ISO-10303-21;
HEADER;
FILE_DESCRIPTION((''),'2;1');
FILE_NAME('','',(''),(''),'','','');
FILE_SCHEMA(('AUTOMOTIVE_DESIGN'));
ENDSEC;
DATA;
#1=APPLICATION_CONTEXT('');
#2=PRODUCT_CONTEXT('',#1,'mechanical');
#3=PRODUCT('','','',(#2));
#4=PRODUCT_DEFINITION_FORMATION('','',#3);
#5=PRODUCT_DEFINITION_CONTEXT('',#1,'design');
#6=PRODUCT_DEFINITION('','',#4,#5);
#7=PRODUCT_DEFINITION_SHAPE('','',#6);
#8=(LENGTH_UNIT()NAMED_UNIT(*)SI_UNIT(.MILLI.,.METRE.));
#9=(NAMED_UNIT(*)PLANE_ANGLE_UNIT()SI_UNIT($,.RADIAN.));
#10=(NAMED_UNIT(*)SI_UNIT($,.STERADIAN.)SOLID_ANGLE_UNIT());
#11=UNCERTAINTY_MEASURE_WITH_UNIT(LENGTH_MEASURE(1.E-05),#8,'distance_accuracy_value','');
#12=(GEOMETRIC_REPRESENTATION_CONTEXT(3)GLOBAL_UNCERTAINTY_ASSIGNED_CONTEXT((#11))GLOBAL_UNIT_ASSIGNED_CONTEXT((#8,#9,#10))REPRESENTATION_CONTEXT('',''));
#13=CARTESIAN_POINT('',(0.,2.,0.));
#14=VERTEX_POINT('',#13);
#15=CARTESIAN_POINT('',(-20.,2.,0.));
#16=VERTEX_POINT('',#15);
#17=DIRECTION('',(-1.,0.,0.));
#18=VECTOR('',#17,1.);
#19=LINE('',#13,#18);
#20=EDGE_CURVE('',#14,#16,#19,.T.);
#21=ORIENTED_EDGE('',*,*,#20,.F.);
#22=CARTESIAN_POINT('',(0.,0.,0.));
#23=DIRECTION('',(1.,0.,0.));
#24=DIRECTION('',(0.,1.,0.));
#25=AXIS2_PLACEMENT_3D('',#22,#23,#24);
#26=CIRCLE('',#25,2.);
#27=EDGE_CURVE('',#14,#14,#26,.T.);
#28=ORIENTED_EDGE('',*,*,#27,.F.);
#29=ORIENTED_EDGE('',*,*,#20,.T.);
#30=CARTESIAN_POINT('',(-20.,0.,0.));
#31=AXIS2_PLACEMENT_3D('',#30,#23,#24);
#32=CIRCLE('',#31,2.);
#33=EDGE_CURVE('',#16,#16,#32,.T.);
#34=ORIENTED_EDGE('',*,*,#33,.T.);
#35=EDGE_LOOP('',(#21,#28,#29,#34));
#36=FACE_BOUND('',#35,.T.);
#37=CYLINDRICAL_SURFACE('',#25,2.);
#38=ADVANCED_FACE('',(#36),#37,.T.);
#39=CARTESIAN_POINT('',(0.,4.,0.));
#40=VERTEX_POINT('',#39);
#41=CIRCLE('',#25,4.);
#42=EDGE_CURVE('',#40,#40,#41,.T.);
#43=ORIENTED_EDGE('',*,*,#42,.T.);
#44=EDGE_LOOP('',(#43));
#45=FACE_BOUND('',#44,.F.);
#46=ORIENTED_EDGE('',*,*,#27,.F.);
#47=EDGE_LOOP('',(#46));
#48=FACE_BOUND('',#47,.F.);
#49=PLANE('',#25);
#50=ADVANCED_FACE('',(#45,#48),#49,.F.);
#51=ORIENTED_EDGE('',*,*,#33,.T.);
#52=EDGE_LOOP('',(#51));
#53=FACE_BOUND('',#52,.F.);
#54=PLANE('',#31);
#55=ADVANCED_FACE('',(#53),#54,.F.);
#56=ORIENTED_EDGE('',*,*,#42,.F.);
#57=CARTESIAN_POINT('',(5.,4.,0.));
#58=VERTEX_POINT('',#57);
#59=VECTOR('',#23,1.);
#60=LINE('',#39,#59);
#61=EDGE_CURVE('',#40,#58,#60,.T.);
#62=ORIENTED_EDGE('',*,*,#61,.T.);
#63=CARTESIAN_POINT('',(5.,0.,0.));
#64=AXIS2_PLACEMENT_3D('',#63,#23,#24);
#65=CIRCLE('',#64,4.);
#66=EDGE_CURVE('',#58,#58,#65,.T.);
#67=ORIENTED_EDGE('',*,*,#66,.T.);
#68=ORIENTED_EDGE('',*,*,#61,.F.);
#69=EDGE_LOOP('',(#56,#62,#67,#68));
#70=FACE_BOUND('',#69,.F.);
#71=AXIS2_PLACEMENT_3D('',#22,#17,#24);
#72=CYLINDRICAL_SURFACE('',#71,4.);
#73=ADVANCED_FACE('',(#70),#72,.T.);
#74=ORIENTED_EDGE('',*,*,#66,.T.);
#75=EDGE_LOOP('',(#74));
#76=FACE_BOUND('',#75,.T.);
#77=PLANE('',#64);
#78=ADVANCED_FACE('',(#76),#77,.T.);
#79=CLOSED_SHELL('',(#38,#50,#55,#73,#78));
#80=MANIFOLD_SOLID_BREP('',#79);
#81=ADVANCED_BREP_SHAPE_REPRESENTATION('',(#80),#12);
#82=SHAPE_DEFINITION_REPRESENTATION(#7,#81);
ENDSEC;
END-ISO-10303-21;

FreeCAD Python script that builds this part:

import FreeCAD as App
import Part
import Sketcher

V = App.Vector
Q = App.Units.Quantity

doc = App.newDocument("Part")
body = doc.addObject("PartDesign::Body", "Body")

# Sketch on YZ plane
sketch1 = body.newObject("Sketcher::SketchObject", "Sketch")
sketch1.AttachmentSupport = (doc.getObject("YZ_Plane"), [""])
sketch1.MapMode = "FlatFace"
sketch1.addGeometry(Part.Circle(V(0, 0, 0), V(0, 0, 1), 4), False)
sketch1.addConstraint([
    Sketcher.Constraint("Coincident", 0, 3, -1, 1),
    Sketcher.Constraint("Diameter", 0, Q("8 mm")),
])
pad1 = body.newObject("PartDesign::Pad", "Pad")
pad1.Profile = sketch1
pad1.Length = 5

# Sketch on YZ plane
sketch2 = body.newObject("Sketcher::SketchObject", "Sketch001")
sketch2.AttachmentSupport = (doc.getObject("YZ_Plane"), [""])
sketch2.MapMode = "FlatFace"
sketch2.addGeometry(Part.Circle(V(0, 0, 0), V(0, 0, 1), 2), False)
sketch2.addConstraint([
    Sketcher.Constraint("Coincident", 0, 3, -1, 1),
    Sketcher.Constraint("Diameter", 0, Q("4 mm")),
])
pad2 = body.newObject("PartDesign::Pad", "Pad001")
pad2.Profile = sketch2
pad2.Length = 20
pad2.Reversed = True

doc.recompute()
